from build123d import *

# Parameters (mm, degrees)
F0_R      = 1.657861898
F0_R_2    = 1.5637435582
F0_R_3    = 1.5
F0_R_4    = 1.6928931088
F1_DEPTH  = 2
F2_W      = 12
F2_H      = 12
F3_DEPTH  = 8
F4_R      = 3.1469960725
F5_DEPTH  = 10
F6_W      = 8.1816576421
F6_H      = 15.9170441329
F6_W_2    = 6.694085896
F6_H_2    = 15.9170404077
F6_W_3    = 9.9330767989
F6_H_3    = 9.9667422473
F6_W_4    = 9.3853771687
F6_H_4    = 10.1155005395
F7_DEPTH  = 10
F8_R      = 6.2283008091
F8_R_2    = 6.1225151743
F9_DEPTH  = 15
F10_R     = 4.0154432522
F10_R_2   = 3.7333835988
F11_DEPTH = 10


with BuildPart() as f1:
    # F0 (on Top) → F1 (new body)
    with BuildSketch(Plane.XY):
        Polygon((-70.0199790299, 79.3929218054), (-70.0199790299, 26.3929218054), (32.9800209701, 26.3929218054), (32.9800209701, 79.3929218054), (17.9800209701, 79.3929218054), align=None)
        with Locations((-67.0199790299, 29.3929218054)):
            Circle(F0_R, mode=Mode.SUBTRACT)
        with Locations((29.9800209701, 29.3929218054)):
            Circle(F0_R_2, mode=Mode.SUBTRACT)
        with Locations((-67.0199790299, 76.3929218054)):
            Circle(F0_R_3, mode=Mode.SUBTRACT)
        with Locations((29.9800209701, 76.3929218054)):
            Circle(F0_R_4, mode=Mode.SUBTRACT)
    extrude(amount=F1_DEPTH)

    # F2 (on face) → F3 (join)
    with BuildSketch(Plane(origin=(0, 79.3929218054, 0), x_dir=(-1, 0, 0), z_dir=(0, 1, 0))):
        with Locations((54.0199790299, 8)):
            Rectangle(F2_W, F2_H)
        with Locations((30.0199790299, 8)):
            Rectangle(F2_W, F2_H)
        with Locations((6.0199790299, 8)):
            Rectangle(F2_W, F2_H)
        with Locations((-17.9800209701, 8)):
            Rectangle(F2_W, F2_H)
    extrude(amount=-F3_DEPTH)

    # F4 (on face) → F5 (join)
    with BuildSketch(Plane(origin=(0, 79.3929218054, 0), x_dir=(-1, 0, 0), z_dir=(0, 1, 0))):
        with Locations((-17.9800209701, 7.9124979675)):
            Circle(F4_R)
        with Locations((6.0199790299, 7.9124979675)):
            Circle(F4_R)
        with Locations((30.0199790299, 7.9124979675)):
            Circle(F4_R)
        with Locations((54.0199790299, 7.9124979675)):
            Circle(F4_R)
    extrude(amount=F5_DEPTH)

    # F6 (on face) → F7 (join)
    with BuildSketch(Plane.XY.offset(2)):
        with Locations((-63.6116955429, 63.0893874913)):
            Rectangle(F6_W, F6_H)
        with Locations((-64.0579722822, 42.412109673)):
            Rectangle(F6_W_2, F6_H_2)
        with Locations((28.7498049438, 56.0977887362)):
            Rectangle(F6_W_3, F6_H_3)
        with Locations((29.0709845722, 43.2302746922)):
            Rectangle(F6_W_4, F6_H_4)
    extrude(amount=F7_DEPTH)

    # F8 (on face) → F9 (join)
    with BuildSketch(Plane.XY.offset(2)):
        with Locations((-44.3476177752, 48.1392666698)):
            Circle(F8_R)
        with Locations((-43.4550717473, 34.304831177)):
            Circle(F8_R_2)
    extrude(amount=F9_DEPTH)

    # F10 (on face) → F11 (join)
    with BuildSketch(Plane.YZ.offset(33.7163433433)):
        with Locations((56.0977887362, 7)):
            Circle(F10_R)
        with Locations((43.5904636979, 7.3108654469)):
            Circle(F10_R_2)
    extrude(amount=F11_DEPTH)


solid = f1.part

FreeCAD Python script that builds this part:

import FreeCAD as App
import Part
import Sketcher

doc = App.newDocument("Part")
body = doc.addObject("PartDesign::Body", "Body")

# Sketch on XY plane
sketch1 = body.newObject("Sketcher::SketchObject", "Sketch")
sketch1.AttachmentSupport = (doc.getObject("XY_Plane"), [""])
sketch1.MapMode = "FlatFace"
sketch1.addGeometry(Part.LineSegment(App.Vector(-70, 79.4, 0), App.Vector(-70, 26.4, 0)), False)
sketch1.addGeometry(Part.LineSegment(App.Vector(-70, 26.4, 0), App.Vector(33, 26.4, 0)), False)
sketch1.addGeometry(Part.LineSegment(App.Vector(33, 26.4, 0), App.Vector(33, 79.4, 0)), False)
sketch1.addGeometry(Part.LineSegment(App.Vector(33, 79.4, 0), App.Vector(-70, 79.4, 0)), False)
sketch1.addGeometry(Part.Circle(App.Vector(-67, 29.4, 0), App.Vector(0, 0, 1), 1.7), False)
sketch1.addGeometry(Part.Circle(App.Vector(30, 29.4, 0), App.Vector(0, 0, 1), 1.6), False)
sketch1.addGeometry(Part.Circle(App.Vector(-67, 76.4, 0), App.Vector(0, 0, 1), 1.5), False)
sketch1.addGeometry(Part.Circle(App.Vector(30, 76.4, 0), App.Vector(0, 0, 1), 1.7), False)
sketch1.addConstraint(Sketcher.Constraint("Coincident", 0, 2, 1, 1))
sketch1.addConstraint(Sketcher.Constraint("Coincident", 1, 2, 2, 1))
sketch1.addConstraint(Sketcher.Constraint("Coincident", 2, 2, 3, 1))
sketch1.addConstraint(Sketcher.Constraint("Coincident", 3, 2, 0, 1))
sketch1.addConstraint(Sketcher.Constraint("Vertical", 0))
sketch1.addConstraint(Sketcher.Constraint("Horizontal", 1))
sketch1.addConstraint(Sketcher.Constraint("Vertical", 2))
sketch1.addConstraint(Sketcher.Constraint("Horizontal", 3))
sketch1.addConstraint(Sketcher.Constraint("Horizontal", 4, 3, 5, 3))
sketch1.addConstraint(Sketcher.Constraint("Horizontal", 6, 3, 7, 3))
sketch1.addConstraint(Sketcher.Constraint("Vertical", 4, 3, 6, 3))
sketch1.addConstraint(Sketcher.Constraint("Vertical", 5, 3, 7, 3))
sketch1.addConstraint(Sketcher.Constraint("Diameter", 6, 3.0))
sketch1.addConstraint(Sketcher.Constraint("DistanceX", 1, 1, 1, 2, 103.0))
sketch1.addConstraint(Sketcher.Constraint("DistanceY", 0, 2, 0, 1, 53.0))
sketch1.addConstraint(Sketcher.Constraint("DistanceX", 4, 3, 5, 3, 97.0))
sketch1.addConstraint(Sketcher.Constraint("DistanceY", 4, 3, 6, 3, 47.0))
sketch1.addConstraint(Sketcher.Constraint("DistanceX", 0, 2, 4, 3, 3.0))
sketch1.addConstraint(Sketcher.Constraint("DistanceY", 0, 2, 4, 3, 3.0))
sketch1.addConstraint(Sketcher.Constraint("Diameter", 4, 3.315724))
sketch1.addConstraint(Sketcher.Constraint("Diameter", 5, 3.127487))
sketch1.addConstraint(Sketcher.Constraint("Diameter", 7, 3.385786))
sketch1.addConstraint(Sketcher.Constraint("DistanceX", 4, 3, -1, 1, 67.019979))
sketch1.addConstraint(Sketcher.Constraint("DistanceY", -1, 1, 4, 3, 29.392922))
pad1 = body.newObject("PartDesign::Pad", "Pad")
pad1.Profile = sketch1
pad1.Length = 2

# Sketch on XZ plane
sketch2 = body.newObject("Sketcher::SketchObject", "Sketch001")
sketch2.AttachmentSupport = (doc.getObject("XZ_Plane"), [""])
sketch2.MapMode = "FlatFace"
sketch2.AttachmentOffset = App.Placement(App.Vector(0, 0, -79.392922), App.Rotation())
sketch2.addGeometry(Part.LineSegment(App.Vector(-48, 14, 0), App.Vector(-48, 2, 0)), False)
sketch2.addGeometry(Part.LineSegment(App.Vector(-48, 2, 0), App.Vector(-60, 2, 0)), False)
sketch2.addGeometry(Part.LineSegment(App.Vector(-60, 2, 0), App.Vector(-60, 14, 0)), False)
sketch2.addGeometry(Part.LineSegment(App.Vector(-60, 14, 0), App.Vector(-48, 14, 0)), False)
sketch2.addGeometry(Part.LineSegment(App.Vector(-24, 14, 0), App.Vector(-24, 2, 0)), False)
sketch2.addGeometry(Part.LineSegment(App.Vector(-24, 2, 0), App.Vector(-36, 2, 0)), False)
sketch2.addGeometry(Part.LineSegment(App.Vector(-36, 2, 0), App.Vector(-36, 14, 0)), False)
sketch2.addGeometry(Part.LineSegment(App.Vector(-36, 14, 0), App.Vector(-24, 14, 0)), False)
sketch2.addGeometry(Part.LineSegment(App.Vector(0, 14, 0), App.Vector(0, 2, 0)), False)
sketch2.addGeometry(Part.LineSegment(App.Vector(0, 2, 0), App.Vector(-12, 2, 0)), False)
sketch2.addGeometry(Part.LineSegment(App.Vector(-12, 2, 0), App.Vector(-12, 14, 0)), False)
sketch2.addGeometry(Part.LineSegment(App.Vector(-12, 14, 0), App.Vector(0, 14, 0)), False)
sketch2.addGeometry(Part.LineSegment(App.Vector(24, 14, 0), App.Vector(24, 2, 0)), False)
sketch2.addGeometry(Part.LineSegment(App.Vector(24, 2, 0), App.Vector(12, 2, 0)), False)
sketch2.addGeometry(Part.LineSegment(App.Vector(12, 2, 0), App.Vector(12, 14, 0)), False)
sketch2.addGeometry(Part.LineSegment(App.Vector(12, 14, 0), App.Vector(24, 14, 0)), False)
sketch2.addConstraint(Sketcher.Constraint("Coincident", 0, 2, 1, 1))
sketch2.addConstraint(Sketcher.Constraint("Coincident", 1, 2, 2, 1))
sketch2.addConstraint(Sketcher.Constraint("Coincident", 2, 2, 3, 1))
sketch2.addConstraint(Sketcher.Constraint("Coincident", 3, 2, 0, 1))
sketch2.addConstraint(Sketcher.Constraint("Coincident", 4, 2, 5, 1))
sketch2.addConstraint(Sketcher.Constraint("Coincident", 5, 2, 6, 1))
sketch2.addConstraint(Sketcher.Constraint("Coincident", 6, 2, 7, 1))
sketch2.addConstraint(Sketcher.Constraint("Coincident", 7, 2, 4, 1))
sketch2.addConstraint(Sketcher.Constraint("Coincident", 8, 2, 9, 1))
sketch2.addConstraint(Sketcher.Constraint("Coincident", 9, 2, 10, 1))
sketch2.addConstraint(Sketcher.Constraint("Coincident", 10, 2, 11, 1))
sketch2.addConstraint(Sketcher.Constraint("Coincident", 11, 2, 8, 1))
sketch2.addConstraint(Sketcher.Constraint("Coincident", 12, 2, 13, 1))
sketch2.addConstraint(Sketcher.Constraint("Coincident", 13, 2, 14, 1))
sketch2.addConstraint(Sketcher.Constraint("Coincident", 14, 2, 15, 1))
sketch2.addConstraint(Sketcher.Constraint("Coincident", 15, 2, 12, 1))
sketch2.addConstraint(Sketcher.Constraint("Vertical", 0))
sketch2.addConstraint(Sketcher.Constraint("Horizontal", 1))
sketch2.addConstraint(Sketcher.Constraint("Vertical", 2))
sketch2.addConstraint(Sketcher.Constraint("Horizontal", 3))
sketch2.addConstraint(Sketcher.Constraint("Vertical", 4))
sketch2.addConstraint(Sketcher.Constraint("Horizontal", 5))
sketch2.addConstraint(Sketcher.Constraint("Vertical", 6))
sketch2.addConstraint(Sketcher.Constraint("Horizontal", 7))
sketch2.addConstraint(Sketcher.Constraint("Vertical", 8))
sketch2.addConstraint(Sketcher.Constraint("Horizontal", 9))
sketch2.addConstraint(Sketcher.Constraint("Vertical", 10))
sketch2.addConstraint(Sketcher.Constraint("Horizontal", 11))
sketch2.addConstraint(Sketcher.Constraint("Vertical", 12))
sketch2.addConstraint(Sketcher.Constraint("Horizontal", 13))
sketch2.addConstraint(Sketcher.Constraint("Vertical", 14))
sketch2.addConstraint(Sketcher.Constraint("Horizontal", 15))
sketch2.addConstraint(Sketcher.Constraint("Horizontal", 1, 2, 4, 2))
sketch2.addConstraint(Sketcher.Constraint("Horizontal", 3, 2, 6, 2))
sketch2.addConstraint(Sketcher.Constraint("Horizontal", 5, 2, 8, 2))
sketch2.addConstraint(Sketcher.Constraint("Horizontal", 7, 2, 10, 2))
sketch2.addConstraint(Sketcher.Constraint("Horizontal", 9, 2, 12, 2))
sketch2.addConstraint(Sketcher.Constraint("Horizontal", 11, 2, 14, 2))
sketch2.addConstraint(Sketcher.Constraint("Equal", 3, 5))
sketch2.addConstraint(Sketcher.Constraint("Equal", 7, 9))
sketch2.addConstraint(Sketcher.Constraint("Equal", 11, 13))
sketch2.addConstraint(Sketcher.Constraint("Equal", 15, 0))
sketch2.addConstraint(Sketcher.Constraint("DistanceX", 1, 2, 1, 1, 12.0))
sketch2.addConstraint(Sketcher.Constraint("DistanceY", -1, 1, 0, 2, 2.0))
sketch2.addConstraint(Sketcher.Constraint("DistanceX", 0, 2, 4, 2, 24.0))
sketch2.addConstraint(Sketcher.Constraint("DistanceX", 4, 2, 8, 2, 24.0))
sketch2.addConstraint(Sketcher.Constraint("DistanceX", 8, 2, 12, 2, 24.0))
sketch2.addConstraint(Sketcher.Constraint("DistanceX", 0, 2, -1, 1, 48.019979))
pad2 = body.newObject("PartDesign::Pad", "Pad001")
pad2.Profile = sketch2
pad2.Length = 8

# Sketch on XZ plane
sketch3 = body.newObject("Sketcher::SketchObject", "Sketch002")
sketch3.AttachmentSupport = (doc.getObject("XZ_Plane"), [""])
sketch3.MapMode = "FlatFace"
sketch3.AttachmentOffset = App.Placement(App.Vector(0, 0, -79.392922), App.Rotation())
sketch3.addGeometry(Part.Circle(App.Vector(18, 7.9, 0), App.Vector(0, 0, 1), 3.1), False)
sketch3.addGeometry(Part.Circle(App.Vector(-6, 7.9, 0), App.Vector(0, 0, 1), 3.1), False)
sketch3.addGeometry(Part.Circle(App.Vector(-30, 7.9, 0), App.Vector(0, 0, 1), 3.1), False)
sketch3.addGeometry(Part.Circle(App.Vector(-54, 7.9, 0), App.Vector(0, 0, 1), 3.1), False)
sketch3.addConstraint(Sketcher.Constraint("Equal", 0, 1))
sketch3.addConstraint(Sketcher.Constraint("Equal", 1, 2))
sketch3.addConstraint(Sketcher.Constraint("Equal", 2, 3))
sketch3.addConstraint(Sketcher.Constraint("Horizontal", 0, 3, 1, 3))
sketch3.addConstraint(Sketcher.Constraint("Horizontal", 1, 3, 2, 3))
sketch3.addConstraint(Sketcher.Constraint("Horizontal", 2, 3, 3, 3))
sketch3.addConstraint(Sketcher.Constraint("DistanceX", 1, 3, 0, 3, 24.0))
sketch3.addConstraint(Sketcher.Constraint("DistanceX", 2, 3, 1, 3, 24.0))
sketch3.addConstraint(Sketcher.Constraint("DistanceX", 3, 3, 2, 3, 24.0))
sketch3.addConstraint(Sketcher.Constraint("Diameter", 0, 6.293992))
sketch3.addConstraint(Sketcher.Constraint("DistanceX", -1, 1, 0, 3, 17.980021))
sketch3.addConstraint(Sketcher.Constraint("DistanceY", -1, 1, 0, 3, 7.912498))
pad3 = body.newObject("PartDesign::Pad", "Pad002")
pad3.Profile = sketch3
pad3.Length = 10
pad3.Reversed = True

# Sketch on XY plane
sketch4 = body.newObject("Sketcher::SketchObject", "Sketch003")
sketch4.AttachmentSupport = (doc.getObject("XY_Plane"), [""])
sketch4.MapMode = "FlatFace"
sketch4.AttachmentOffset = App.Placement(App.Vector(0, 0, 2), App.Rotation())
sketch4.addGeometry(Part.LineSegment(App.Vector(-68, 71, 0), App.Vector(-68, 55, 0)), False)
sketch4.addGeometry(Part.LineSegment(App.Vector(-68, 55, 0), App.Vector(-60, 55, 0)), False)
sketch4.addGeometry(Part.LineSegment(App.Vector(-60, 55, 0), App.Vector(-60, 71, 0)), False)
sketch4.addGeometry(Part.LineSegment(App.Vector(-60, 71, 0), App.Vector(-68, 71, 0)), False)
sketch4.addGeometry(Part.LineSegment(App.Vector(-67, 50, 0), App.Vector(-67, 34, 0)), False)
sketch4.addGeometry(Part.LineSegment(App.Vector(-67, 34, 0), App.Vector(-61, 34, 0)), False)
sketch4.addGeometry(Part.LineSegment(App.Vector(-61, 34, 0), App.Vector(-61, 50, 0)), False)
sketch4.addGeometry(Part.LineSegment(App.Vector(-61, 50, 0), App.Vector(-67, 50, 0)), False)
sketch4.addGeometry(Part.LineSegment(App.Vector(24, 61, 0), App.Vector(24, 51, 0)), False)
sketch4.addGeometry(Part.LineSegment(App.Vector(24, 51, 0), App.Vector(34, 51, 0)), False)
sketch4.addGeometry(Part.LineSegment(App.Vector(34, 51, 0), App.Vector(34, 61, 0)), False)
sketch4.addGeometry(Part.LineSegment(App.Vector(34, 61, 0), App.Vector(24, 61, 0)), False)
sketch4.addGeometry(Part.LineSegment(App.Vector(24, 48, 0), App.Vector(24, 38, 0)), False)
sketch4.addGeometry(Part.LineSegment(App.Vector(24, 38, 0), App.Vector(34, 38, 0)), False)
sketch4.addGeometry(Part.LineSegment(App.Vector(34, 38, 0), App.Vector(34, 48, 0)), False)
sketch4.addGeometry(Part.LineSegment(App.Vector(34, 48, 0), App.Vector(24, 48, 0)), False)
sketch4.addConstraint(Sketcher.Constraint("Coincident", 0, 2, 1, 1))
sketch4.addConstraint(Sketcher.Constraint("Coincident", 1, 2, 2, 1))
sketch4.addConstraint(Sketcher.Constraint("Coincident", 2, 2, 3, 1))
sketch4.addConstraint(Sketcher.Constraint("Coincident", 3, 2, 0, 1))
sketch4.addConstraint(Sketcher.Constraint("Coincident", 4, 2, 5, 1))
sketch4.addConstraint(Sketcher.Constraint("Coincident", 5, 2, 6, 1))
sketch4.addConstraint(Sketcher.Constraint("Coincident", 6, 2, 7, 1))
sketch4.addConstraint(Sketcher.Constraint("Coincident", 7, 2, 4, 1))
sketch4.addConstraint(Sketcher.Constraint("Coincident", 8, 2, 9, 1))
sketch4.addConstraint(Sketcher.Constraint("Coincident", 9, 2, 10, 1))
sketch4.addConstraint(Sketcher.Constraint("Coincident", 10, 2, 11, 1))
sketch4.addConstraint(Sketcher.Constraint("Coincident", 11, 2, 8, 1))
sketch4.addConstraint(Sketcher.Constraint("Coincident", 12, 2, 13, 1))
sketch4.addConstraint(Sketcher.Constraint("Coincident", 13, 2, 14, 1))
sketch4.addConstraint(Sketcher.Constraint("Coincident", 14, 2, 15, 1))
sketch4.addConstraint(Sketcher.Constraint("Coincident", 15, 2, 12, 1))
sketch4.addConstraint(Sketcher.Constraint("Vertical", 0))
sketch4.addConstraint(Sketcher.Constraint("Horizontal", 1))
sketch4.addConstraint(Sketcher.Constraint("Vertical", 2))
sketch4.addConstraint(Sketcher.Constraint("Horizontal", 3))
sketch4.addConstraint(Sketcher.Constraint("Vertical", 4))
sketch4.addConstraint(Sketcher.Constraint("Horizontal", 5))
sketch4.addConstraint(Sketcher.Constraint("Vertical", 6))
sketch4.addConstraint(Sketcher.Constraint("Horizontal", 7))
sketch4.addConstraint(Sketcher.Constraint("Vertical", 8))
sketch4.addConstraint(Sketcher.Constraint("Horizontal", 9))
sketch4.addConstraint(Sketcher.Constraint("Vertical", 10))
sketch4.addConstraint(Sketcher.Constraint("Horizontal", 11))
sketch4.addConstraint(Sketcher.Constraint("Vertical", 12))
sketch4.addConstraint(Sketcher.Constraint("Horizontal", 13))
sketch4.addConstraint(Sketcher.Constraint("Vertical", 14))
sketch4.addConstraint(Sketcher.Constraint("Horizontal", 15))
sketch4.addConstraint(Sketcher.Constraint("DistanceY", 12, 2, 12, 1, 10.115501))
sketch4.addConstraint(Sketcher.Constraint("DistanceY", 4, 2, 4, 1, 15.91704))
sketch4.addConstraint(Sketcher.Constraint("DistanceX", 1, 1, 1, 2, 8.181658))
sketch4.addConstraint(Sketcher.Constraint("DistanceX", 5, 1, 5, 2, 6.694086))
sketch4.addConstraint(Sketcher.Constraint("DistanceX", 9, 1, 9, 2, 9.933077))
sketch4.addConstraint(Sketcher.Constraint("DistanceX", 13, 1, 13, 2, 9.385377))
sketch4.addConstraint(Sketcher.Constraint("DistanceY", 0, 2, 0, 1, 15.917044))
sketch4.addConstraint(Sketcher.Constraint("DistanceY", 8, 2, 8, 1, 9.966742))
sketch4.addConstraint(Sketcher.Constraint("DistanceY", -1, 1, 2, 2, 71.04791))
sketch4.addConstraint(Sketcher.Constraint("DistanceY", -1, 1, 4, 2, 34.453589))
sketch4.addConstraint(Sketcher.Constraint("DistanceX", 5, 2, -1, 1, 60.710929))
sketch4.addConstraint(Sketcher.Constraint("DistanceY", -1, 1, 10, 2, 61.08116))
sketch4.addConstraint(Sketcher.Constraint("DistanceX", 0, 2, 4, 2, 0.297509))
sketch4.addConstraint(Sketcher.Constraint("DistanceX", 7, 2, 8, 2, 91.188282))
sketch4.addConstraint(Sketcher.Constraint("DistanceX", 8, 2, 12, 2, 0.595029))
sketch4.addConstraint(Sketcher.Constraint("DistanceY", -1, 1, 12, 2, 38.172524))
pad4 = body.newObject("PartDesign::Pad", "Pad003")
pad4.Profile = sketch4
pad4.Length = 10

# Sketch on XY plane
sketch5 = body.newObject("Sketcher::SketchObject", "Sketch004")
sketch5.AttachmentSupport = (doc.getObject("XY_Plane"), [""])
sketch5.MapMode = "FlatFace"
sketch5.AttachmentOffset = App.Placement(App.Vector(0, 0, 2), App.Rotation())
sketch5.addGeometry(Part.Circle(App.Vector(-44, 48, 0), App.Vector(0, 0, 1), 6), False)
sketch5.addGeometry(Part.Circle(App.Vector(-43, 34, 0), App.Vector(0, 0, 1), 6), False)
sketch5.addConstraint(Sketcher.Constraint("Diameter", 0, 12.456602))
sketch5.addConstraint(Sketcher.Constraint("Diameter", 1, 12.24503))
sketch5.addConstraint(Sketcher.Constraint("DistanceX", 1, 3, -1, 1, 43.455072))
sketch5.addConstraint(Sketcher.Constraint("DistanceY", -1, 1, 1, 3, 34.304831))
sketch5.addConstraint(Sketcher.Constraint("DistanceX", 0, 3, -1, 1, 44.347618))
sketch5.addConstraint(Sketcher.Constraint("DistanceY", -1, 1, 0, 3, 48.139267))
pad5 = body.newObject("PartDesign::Pad", "Pad004")
pad5.Profile = sketch5
pad5.Length = 15

# Sketch on YZ plane
sketch6 = body.newObject("Sketcher::SketchObject", "Sketch005")
sketch6.AttachmentSupport = (doc.getObject("YZ_Plane"), [""])
sketch6.MapMode = "FlatFace"
sketch6.AttachmentOffset = App.Placement(App.Vector(0, 0, 33.716343), App.Rotation())
sketch6.addGeometry(Part.Circle(App.Vector(56.1, 7, 0), App.Vector(0, 0, 1), 4), False)
sketch6.addGeometry(Part.Circle(App.Vector(43.6, 7.3, 0), App.Vector(0, 0, 1), 3.7), False)
sketch6.addConstraint(Sketcher.Constraint("DistanceY", -1, 1, 0, 3, 7.0))
sketch6.addConstraint(Sketcher.Constraint("Diameter", 0, 8.030887))
sketch6.addConstraint(Sketcher.Constraint("Diameter", 1, 7.466767))
sketch6.addConstraint(Sketcher.Constraint("DistanceX", -1, 1, 0, 3, 56.097789))
sketch6.addConstraint(Sketcher.Constraint("DistanceX", -1, 1, 1, 3, 43.590464))
sketch6.addConstraint(Sketcher.Constraint("DistanceY", -1, 1, 1, 3, 7.310865))
pad6 = body.newObject("PartDesign::Pad", "Pad005")
pad6.Profile = sketch6
pad6.Length = 10

doc.recompute()
